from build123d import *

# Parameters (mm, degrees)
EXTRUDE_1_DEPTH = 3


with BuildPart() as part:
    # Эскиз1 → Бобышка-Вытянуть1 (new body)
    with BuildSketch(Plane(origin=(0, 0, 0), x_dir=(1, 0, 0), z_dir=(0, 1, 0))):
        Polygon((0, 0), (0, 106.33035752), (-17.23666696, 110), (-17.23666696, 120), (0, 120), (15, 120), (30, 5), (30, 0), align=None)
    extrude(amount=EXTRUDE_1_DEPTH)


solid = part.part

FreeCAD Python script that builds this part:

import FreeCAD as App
import Part
import Sketcher
from FreeCAD import Vector


def add_polygon(sketch, points):
    """Adds a closed chain of lines whose ends are joined by coincident constraints."""
    first, n = sketch.GeometryCount, len(points)
    for a, b in zip(points, points[1:] + points[:1]):
        sketch.addGeometry(Part.LineSegment(App.Vector(*a, 0), App.Vector(*b, 0)), False)
    for i in range(n):
        sketch.addConstraint(Sketcher.Constraint("Coincident", first + i, 2, first + (i + 1) % n, 1))

doc = App.newDocument("Part")
body = doc.addObject("PartDesign::Body", "Body")

sketch1 = body.newObject("Sketcher::SketchObject", "Sketch")
sketch1.AttachmentSupport = (doc.getObject("XZ_Plane"), [""])
sketch1.MapMode = "FlatFace"
add_polygon(sketch1, [(0, -106.330358), (0, 0), (30, 0), (30, -5), (15, -120), (-17.236667, -120), (-17.236667, -110)])
sketch1.addConstraint(Sketcher.Constraint("Vertical", 0))
sketch1.addConstraint(Sketcher.Constraint("Horizontal", 1))
sketch1.addConstraint(Sketcher.Constraint("Vertical", 2))
sketch1.addConstraint(Sketcher.Constraint("Horizontal", 4))
sketch1.addConstraint(Sketcher.Constraint("Vertical", 5))
sketch1.addConstraint(Sketcher.Constraint("Coincident", 0, 2, -1, 1))
sketch1.addConstraint(Sketcher.Constraint("DistanceX", 1, 1, 1, 2, 30.0))
sketch1.addConstraint(Sketcher.Constraint("DistanceY", 2, 2, 2, 1, 5.0))
sketch1.addConstraint(Sketcher.Constraint("DistanceY", 5, 1, 5, 2, 10.0))
sketch1.addConstraint(Sketcher.Constraint("DistanceX", -1, 1, 3, 2, 15.0))
sketch1.addConstraint(Sketcher.Constraint("DistanceY", 3, 2, -1, 1, 120.0))
sketch1.addConstraint(Sketcher.Constraint("DistanceX", 4, 2, 4, 1, 32.236667))
sketch1.addConstraint(Sketcher.Constraint("DistanceY", 0, 1, 0, 2, 106.330358))
pad1 = body.newObject("PartDesign::Pad", "Pad")
pad1.Profile = sketch1
pad1.Length = 3
pad1.Reversed = True

doc.recompute()
